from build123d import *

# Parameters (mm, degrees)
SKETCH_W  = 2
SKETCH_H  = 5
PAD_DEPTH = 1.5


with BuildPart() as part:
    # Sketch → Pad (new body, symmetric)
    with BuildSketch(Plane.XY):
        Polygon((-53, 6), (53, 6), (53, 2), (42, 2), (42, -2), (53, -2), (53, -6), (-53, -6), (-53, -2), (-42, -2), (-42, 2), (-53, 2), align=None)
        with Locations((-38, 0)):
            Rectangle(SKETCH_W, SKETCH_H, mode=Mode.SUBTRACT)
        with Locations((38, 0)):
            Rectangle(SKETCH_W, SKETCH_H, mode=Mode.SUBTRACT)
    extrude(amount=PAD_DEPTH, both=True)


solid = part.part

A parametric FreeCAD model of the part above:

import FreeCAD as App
import Part
import Sketcher

V = App.Vector
Q = App.Units.Quantity

doc = App.newDocument("Part")
body = doc.addObject("PartDesign::Body", "Body")

# Sketch on XY plane
sketch1 = body.newObject("Sketcher::SketchObject", "Sketch")
sketch1.AttachmentSupport = (doc.getObject("XY_Plane"), [""])
sketch1.MapMode = "FlatFace"
sketch1.addGeometry([
    Part.LineSegment(V(53, 6, 0), V(-53, 6, 0)),  # 0
    Part.LineSegment(V(-53, 6, 0), V(-53, 2, 0)),  # 1
    Part.LineSegment(V(-53, 2, 0), V(-42, 2, 0)),  # 2
    Part.LineSegment(V(-42, 2, 0), V(-42, -2, 0)),  # 3
    Part.LineSegment(V(-42, -2, 0), V(-53, -2, 0)),  # 4
    Part.LineSegment(V(-53, -2, 0), V(-53, -6, 0)),  # 5
    Part.LineSegment(V(-53, -6, 0), V(53, -6, 0)),  # 6
    Part.LineSegment(V(53, -6, 0), V(53, -2, 0)),  # 7
    Part.LineSegment(V(53, -2, 0), V(42, -2, 0)),  # 8
    Part.LineSegment(V(42, -2, 0), V(42, 2, 0)),  # 9
    Part.LineSegment(V(42, 2, 0), V(53, 2, 0)),  # 10
    Part.LineSegment(V(53, 2, 0), V(53, 6, 0)),  # 11
    Part.LineSegment(V(37, -2.5, 0), V(37, 2.5, 0)),  # 12
    Part.LineSegment(V(37, 2.5, 0), V(39, 2.5, 0)),  # 13
    Part.LineSegment(V(39, 2.5, 0), V(39, -2.5, 0)),  # 14
    Part.LineSegment(V(39, -2.5, 0), V(37, -2.5, 0)),  # 15
    Part.LineSegment(V(-39, -2.5, 0), V(-39, 2.5, 0)),  # 16
    Part.LineSegment(V(-39, 2.5, 0), V(-37, 2.5, 0)),  # 17
    Part.LineSegment(V(-37, 2.5, 0), V(-37, -2.5, 0)),  # 18
    Part.LineSegment(V(-37, -2.5, 0), V(-39, -2.5, 0)),  # 19
], False)
sketch1.addConstraint([
    Sketcher.Constraint("Coincident", 0, 2, 1, 1),
    Sketcher.Constraint("Coincident", 1, 2, 2, 1),
    Sketcher.Constraint("Coincident", 2, 2, 3, 1),
    Sketcher.Constraint("Coincident", 3, 2, 4, 1),
    Sketcher.Constraint("Coincident", 4, 2, 5, 1),
    Sketcher.Constraint("Coincident", 5, 2, 6, 1),
    Sketcher.Constraint("Coincident", 6, 2, 7, 1),
    Sketcher.Constraint("Coincident", 7, 2, 8, 1),
    Sketcher.Constraint("Coincident", 8, 2, 9, 1),
    Sketcher.Constraint("Coincident", 9, 2, 10, 1),
    Sketcher.Constraint("Coincident", 10, 2, 11, 1),
    Sketcher.Constraint("Coincident", 11, 2, 0, 1),
    Sketcher.Constraint("Coincident", 12, 2, 13, 1),
    Sketcher.Constraint("Coincident", 13, 2, 14, 1),
    Sketcher.Constraint("Coincident", 14, 2, 15, 1),
    Sketcher.Constraint("Coincident", 15, 2, 12, 1),
    Sketcher.Constraint("Coincident", 16, 2, 17, 1),
    Sketcher.Constraint("Coincident", 17, 2, 18, 1),
    Sketcher.Constraint("Coincident", 18, 2, 19, 1),
    Sketcher.Constraint("Coincident", 19, 2, 16, 1),
    Sketcher.Constraint("Horizontal", 0),
    Sketcher.Constraint("Vertical", 1),
    Sketcher.Constraint("Horizontal", 2),
    Sketcher.Constraint("Vertical", 3),
    Sketcher.Constraint("Horizontal", 4),
    Sketcher.Constraint("Vertical", 5),
    Sketcher.Constraint("Horizontal", 6),
    Sketcher.Constraint("Vertical", 7),
    Sketcher.Constraint("Horizontal", 8),
    Sketcher.Constraint("Vertical", 9),
    Sketcher.Constraint("Horizontal", 10),
    Sketcher.Constraint("Vertical", 11),
    Sketcher.Constraint("Vertical", 12),
    Sketcher.Constraint("Horizontal", 13),
    Sketcher.Constraint("Vertical", 14),
    Sketcher.Constraint("Horizontal", 15),
    Sketcher.Constraint("Vertical", 16),
    Sketcher.Constraint("Horizontal", 17),
    Sketcher.Constraint("Vertical", 18),
    Sketcher.Constraint("Horizontal", 19),
    Sketcher.Constraint("Symmetric", 0, 2, 6, 2, -1, 1),
    Sketcher.Constraint("Symmetric", 2, 2, 8, 2, -1, 1),
    Sketcher.Constraint("Symmetric", 4, 2, 10, 2, -1, 1),
    Sketcher.Constraint("Symmetric", 14, 2, 16, 2, -1, 1),
    Sketcher.Constraint("Symmetric", 12, 2, 18, 2, -1, 1),
    Sketcher.Constraint("Symmetric", 4, 2, 7, 2, -2),
    Sketcher.Constraint("Horizontal", 13, 2, 16, 2),
    Sketcher.Constraint("Equal", 1, 3),
    Sketcher.Constraint("DistanceX", 0, 2, 0, 1, Q("106 mm")),
    Sketcher.Constraint("DistanceX", 2, 1, 2, 2, Q("11 mm")),
    Sketcher.Constraint("DistanceX", 13, 1, 13, 2, Q("2 mm")),
    Sketcher.Constraint("DistanceY", 1, 2, 1, 1, Q("4 mm")),
    Sketcher.Constraint("DistanceY", 12, 1, 12, 2, Q("5 mm")),
    Sketcher.Constraint("DistanceX", -1, 1, 12, 2, Q("37 mm")),
])
pad1 = body.newObject("PartDesign::Pad", "Pad")
pad1.Profile = sketch1
pad1.Length = 3
pad1.Midplane = True

doc.recompute()
